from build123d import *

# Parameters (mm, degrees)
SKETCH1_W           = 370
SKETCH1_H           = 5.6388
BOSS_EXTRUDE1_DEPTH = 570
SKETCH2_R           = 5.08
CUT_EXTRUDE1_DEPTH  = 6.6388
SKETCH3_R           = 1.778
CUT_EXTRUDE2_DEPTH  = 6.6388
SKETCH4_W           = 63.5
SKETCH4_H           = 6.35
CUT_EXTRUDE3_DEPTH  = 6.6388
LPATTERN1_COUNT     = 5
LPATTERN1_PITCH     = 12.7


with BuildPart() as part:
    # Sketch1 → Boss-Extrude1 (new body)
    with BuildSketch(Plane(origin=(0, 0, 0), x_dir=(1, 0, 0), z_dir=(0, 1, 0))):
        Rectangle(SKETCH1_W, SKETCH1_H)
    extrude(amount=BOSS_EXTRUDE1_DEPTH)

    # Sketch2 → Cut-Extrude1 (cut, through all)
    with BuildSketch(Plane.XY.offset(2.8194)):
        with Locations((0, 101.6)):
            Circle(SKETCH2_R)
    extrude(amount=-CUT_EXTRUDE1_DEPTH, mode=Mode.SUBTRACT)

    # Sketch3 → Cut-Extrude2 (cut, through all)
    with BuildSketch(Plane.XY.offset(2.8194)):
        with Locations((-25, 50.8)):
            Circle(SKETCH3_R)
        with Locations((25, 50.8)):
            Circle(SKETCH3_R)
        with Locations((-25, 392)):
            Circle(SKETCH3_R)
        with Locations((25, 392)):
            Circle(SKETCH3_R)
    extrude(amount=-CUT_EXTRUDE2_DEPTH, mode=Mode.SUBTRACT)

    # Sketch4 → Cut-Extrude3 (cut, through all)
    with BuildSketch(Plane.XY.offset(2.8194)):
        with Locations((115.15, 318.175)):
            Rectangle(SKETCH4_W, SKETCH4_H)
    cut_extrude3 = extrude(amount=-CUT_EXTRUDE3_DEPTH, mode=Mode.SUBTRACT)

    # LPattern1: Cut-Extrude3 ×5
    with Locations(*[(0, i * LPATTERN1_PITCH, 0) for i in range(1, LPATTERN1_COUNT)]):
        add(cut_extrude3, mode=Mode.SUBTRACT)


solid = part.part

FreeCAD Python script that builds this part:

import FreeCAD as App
import Part
import Sketcher
Q = App.Units.Quantity

doc = App.newDocument("Part")
body = doc.addObject("PartDesign::Body", "Body")

# Sketch on XZ plane
sketch1 = body.newObject("Sketcher::SketchObject", "Sketch")
sketch1.AttachmentSupport = (doc.getObject("XZ_Plane"), [""])
sketch1.MapMode = "FlatFace"
sketch1.addGeometry([
    Part.LineSegment(App.Vector(-185, -3, 0), App.Vector(-185, 3, 0)),
    Part.LineSegment(App.Vector(-185, 3, 0), App.Vector(185, 3, 0)),
    Part.LineSegment(App.Vector(185, 3, 0), App.Vector(185, -3, 0)),
    Part.LineSegment(App.Vector(185, -3, 0), App.Vector(-185, -3, 0)),
], False)
sketch1.addConstraint([
    Sketcher.Constraint("Coincident", 0, 2, 1, 1),
    Sketcher.Constraint("Coincident", 1, 2, 2, 1),
    Sketcher.Constraint("Coincident", 2, 2, 3, 1),
    Sketcher.Constraint("Coincident", 3, 2, 0, 1),
    Sketcher.Constraint("Vertical", 0),
    Sketcher.Constraint("Horizontal", 1),
    Sketcher.Constraint("Vertical", 2),
    Sketcher.Constraint("Horizontal", 3),
    Sketcher.Constraint("Symmetric", 0, 2, 2, 2, -1, 1),
    Sketcher.Constraint("DistanceY", 0, 1, 0, 2, Q("0.222 in")),
    Sketcher.Constraint("DistanceX", 1, 1, 1, 2, 370.0),
])
pad1 = body.newObject("PartDesign::Pad", "Pad")
pad1.Profile = sketch1
pad1.Length = 570
pad1.Reversed = True

# Sketch on XY plane
sketch2 = body.newObject("Sketcher::SketchObject", "Sketch001")
sketch2.AttachmentSupport = (doc.getObject("XY_Plane"), [""])
sketch2.MapMode = "FlatFace"
sketch2.AttachmentOffset = App.Placement(App.Vector(0, 0, 0.111 * 25.4), App.Rotation())
sketch2.addGeometry(Part.Circle(App.Vector(0, 102, 0), App.Vector(0, 0, 1), 5), False)
sketch2.addConstraint([
    Sketcher.Constraint("PointOnObject", 0, 3, -2),
    Sketcher.Constraint("Diameter", 0, Q("0.4 in")),
    Sketcher.Constraint("DistanceY", -1, 1, 0, 3, Q("4 in")),
])
pocket1 = body.newObject("PartDesign::Pocket", "Pocket")
pocket1.Profile = sketch2
pocket1.Type = "ThroughAll"

# Sketch on XY plane
sketch3 = body.newObject("Sketcher::SketchObject", "Sketch002")
sketch3.AttachmentSupport = (doc.getObject("XY_Plane"), [""])
sketch3.MapMode = "FlatFace"
sketch3.AttachmentOffset = App.Placement(App.Vector(0, 0, 0.111 * 25.4), App.Rotation())
sketch3.addGeometry([
    Part.Circle(App.Vector(-25, 50.8, 0), App.Vector(0, 0, 1), 1.8),
    Part.Circle(App.Vector(25, 50.8, 0), App.Vector(0, 0, 1), 1.8),
    Part.Circle(App.Vector(-25, 392, 0), App.Vector(0, 0, 1), 1.8),
    Part.Circle(App.Vector(25, 392, 0), App.Vector(0, 0, 1), 1.8),
], False)
sketch3.addConstraint([
    Sketcher.Constraint("Equal", 0, 1),
    Sketcher.Constraint("Equal", 1, 2),
    Sketcher.Constraint("Equal", 2, 3),
    Sketcher.Constraint("Symmetric", 0, 3, 1, 3, -2),
    Sketcher.Constraint("Symmetric", 2, 3, 3, 3, -2),
    Sketcher.Constraint("Vertical", 0, 3, 2, 3),
    Sketcher.Constraint("Diameter", 0, Q("0.14 in")),
    Sketcher.Constraint("DistanceY", -1, 1, 0, 3, Q("2 in")),
    Sketcher.Constraint("DistanceX", 0, 3, -1, 1, 25.0),
    Sketcher.Constraint("DistanceY", -1, 1, 2, 3, 392.0),
])
pocket2 = body.newObject("PartDesign::Pocket", "Pocket001")
pocket2.Profile = sketch3
pocket2.Type = "ThroughAll"

# Sketch on XY plane
sketch4 = body.newObject("Sketcher::SketchObject", "Sketch003")
sketch4.AttachmentSupport = (doc.getObject("XY_Plane"), [""])
sketch4.MapMode = "FlatFace"
sketch4.AttachmentOffset = App.Placement(App.Vector(0, 0, 0.111 * 25.4), App.Rotation())
sketch4.addGeometry([
    Part.LineSegment(App.Vector(83, 321, 0), App.Vector(83, 315, 0)),
    Part.LineSegment(App.Vector(83, 315, 0), App.Vector(147, 315, 0)),
    Part.LineSegment(App.Vector(147, 315, 0), App.Vector(147, 321, 0)),
    Part.LineSegment(App.Vector(147, 321, 0), App.Vector(83, 321, 0)),
], False)
sketch4.addConstraint([
    Sketcher.Constraint("Coincident", 0, 2, 1, 1),
    Sketcher.Constraint("Coincident", 1, 2, 2, 1),
    Sketcher.Constraint("Coincident", 2, 2, 3, 1),
    Sketcher.Constraint("Coincident", 3, 2, 0, 1),
    Sketcher.Constraint("Vertical", 0),
    Sketcher.Constraint("Horizontal", 1),
    Sketcher.Constraint("Vertical", 2),
    Sketcher.Constraint("Horizontal", 3),
    Sketcher.Constraint("DistanceX", 1, 1, 1, 2, Q("2.5 in")),
    Sketcher.Constraint("DistanceY", 0, 2, 0, 1, Q("0.25 in")),
    Sketcher.Constraint("DistanceX", -1, 1, 0, 2, 83.4),
    Sketcher.Constraint("DistanceY", -1, 1, 0, 2, 315.0),
])
pocket3 = body.newObject("PartDesign::Pocket", "Pocket002")
pocket3.Profile = sketch4
pocket3.Type = "ThroughAll"
doc.recompute()

linearpattern = body.newObject("PartDesign::LinearPattern", "LinearPattern")
linearpattern.Originals = [pocket3]
linearpattern.Direction = (doc.getObject("Y_Axis"), [""])
linearpattern.Mode = "offset"
linearpattern.Offset = Q("0.5 in")
linearpattern.Occurrences = 5
body.Tip = linearpattern

doc.recompute()
